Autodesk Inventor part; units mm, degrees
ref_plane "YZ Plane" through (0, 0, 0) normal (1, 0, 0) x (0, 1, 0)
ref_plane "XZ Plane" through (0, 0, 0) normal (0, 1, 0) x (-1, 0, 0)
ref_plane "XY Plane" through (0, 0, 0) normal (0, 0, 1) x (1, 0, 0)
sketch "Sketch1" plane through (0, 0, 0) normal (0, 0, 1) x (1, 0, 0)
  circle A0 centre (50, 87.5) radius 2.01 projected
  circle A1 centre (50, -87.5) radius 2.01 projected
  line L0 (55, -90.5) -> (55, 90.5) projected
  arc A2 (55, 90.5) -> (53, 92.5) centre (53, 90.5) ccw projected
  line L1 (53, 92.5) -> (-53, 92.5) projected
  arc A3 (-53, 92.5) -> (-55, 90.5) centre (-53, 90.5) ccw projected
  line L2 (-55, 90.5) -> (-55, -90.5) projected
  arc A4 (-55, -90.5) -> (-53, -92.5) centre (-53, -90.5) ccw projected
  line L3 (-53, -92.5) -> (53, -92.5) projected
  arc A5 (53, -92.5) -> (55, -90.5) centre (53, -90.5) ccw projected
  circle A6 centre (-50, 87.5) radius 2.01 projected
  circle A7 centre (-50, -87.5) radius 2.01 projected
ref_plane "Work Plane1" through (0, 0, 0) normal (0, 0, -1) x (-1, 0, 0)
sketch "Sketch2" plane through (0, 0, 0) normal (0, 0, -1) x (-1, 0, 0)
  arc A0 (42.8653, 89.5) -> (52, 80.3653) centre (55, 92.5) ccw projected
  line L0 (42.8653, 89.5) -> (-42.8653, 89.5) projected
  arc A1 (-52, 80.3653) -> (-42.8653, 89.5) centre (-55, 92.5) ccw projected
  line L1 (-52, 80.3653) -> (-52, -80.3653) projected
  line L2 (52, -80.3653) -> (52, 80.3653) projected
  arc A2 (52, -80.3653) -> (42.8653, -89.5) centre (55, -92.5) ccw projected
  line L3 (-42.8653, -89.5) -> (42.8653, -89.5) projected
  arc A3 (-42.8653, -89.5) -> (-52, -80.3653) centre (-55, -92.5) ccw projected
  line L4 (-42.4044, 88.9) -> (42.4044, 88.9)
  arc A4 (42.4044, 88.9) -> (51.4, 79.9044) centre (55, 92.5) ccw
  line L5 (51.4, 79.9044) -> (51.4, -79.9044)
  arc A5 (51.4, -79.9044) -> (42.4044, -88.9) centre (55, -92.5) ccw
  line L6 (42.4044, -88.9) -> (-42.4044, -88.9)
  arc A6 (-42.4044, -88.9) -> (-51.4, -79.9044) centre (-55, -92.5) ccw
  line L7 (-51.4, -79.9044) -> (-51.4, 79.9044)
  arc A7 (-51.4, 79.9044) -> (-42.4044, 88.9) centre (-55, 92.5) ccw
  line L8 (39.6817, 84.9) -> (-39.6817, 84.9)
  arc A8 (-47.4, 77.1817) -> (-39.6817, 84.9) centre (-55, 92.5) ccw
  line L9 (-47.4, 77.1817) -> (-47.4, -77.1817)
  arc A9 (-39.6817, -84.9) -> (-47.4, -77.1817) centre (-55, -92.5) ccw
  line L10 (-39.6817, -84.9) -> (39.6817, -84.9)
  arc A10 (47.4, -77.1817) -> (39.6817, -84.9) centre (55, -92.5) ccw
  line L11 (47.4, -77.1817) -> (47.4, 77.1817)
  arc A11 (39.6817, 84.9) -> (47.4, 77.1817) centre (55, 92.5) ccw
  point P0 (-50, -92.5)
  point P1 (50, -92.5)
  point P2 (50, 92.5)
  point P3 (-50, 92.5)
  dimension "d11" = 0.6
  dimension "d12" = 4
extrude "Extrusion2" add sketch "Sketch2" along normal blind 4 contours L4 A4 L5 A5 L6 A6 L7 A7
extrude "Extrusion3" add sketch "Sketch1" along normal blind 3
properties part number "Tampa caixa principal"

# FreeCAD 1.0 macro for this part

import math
import FreeCAD as App
import Part
import Sketcher

V = App.Vector
Q = App.Units.Quantity

doc = App.newDocument("Part")
body = doc.addObject("PartDesign::Body", "Body")

# Sketch on XY plane
sketch1 = doc.addObject("Sketcher::SketchObject", "Sketch")
body.addObject(sketch1)
sketch1.AttachmentSupport = (doc.XY_Plane, [""])
sketch1.MapMode = "FlatFace"
sketch1.addGeometry(Part.LineSegment(V(-42.4044, 88.9, 0), V(42.4044, 88.9, 0)), False)
sketch1.addGeometry(Part.ArcOfCircle(Part.Circle(V(55, 92.5, 0), V(0, 0, 1), 13.099967), math.radians(-164.049317), math.radians(-105.950683)), False)
sketch1.addGeometry(Part.LineSegment(V(51.4, 79.9044, 0), V(51.4, -79.9044, 0)), False)
sketch1.addGeometry(Part.ArcOfCircle(Part.Circle(V(55, -92.5, 0), V(0, 0, 1), 13.099967), math.radians(105.950683), math.radians(164.049317)), False)
sketch1.addGeometry(Part.LineSegment(V(42.4044, -88.9, 0), V(-42.4044, -88.9, 0)), False)
sketch1.addGeometry(Part.ArcOfCircle(Part.Circle(V(-55, -92.5, 0), V(0, 0, 1), 13.099967), math.radians(15.950683), math.radians(74.049317)), False)
sketch1.addGeometry(Part.LineSegment(V(-51.4, -79.9044, 0), V(-51.4, 79.9044, 0)), False)
sketch1.addGeometry(Part.ArcOfCircle(Part.Circle(V(-55, 92.5, 0), V(0, 0, 1), 13.099967), math.radians(-74.049317), math.radians(-15.950683)), False)
sketch1.addGeometry(Part.LineSegment(V(39.6817, 84.9, 0), V(-39.6817, 84.9, 0)), False)
sketch1.addGeometry(Part.ArcOfCircle(Part.Circle(V(-55, 92.5, 0), V(0, 0, 1), 17.100009), math.radians(-63.612215), math.radians(-26.387785)), False)
sketch1.addGeometry(Part.LineSegment(V(-47.4, 77.1817, 0), V(-47.4, -77.1817, 0)), False)
sketch1.addGeometry(Part.ArcOfCircle(Part.Circle(V(-55, -92.5, 0), V(0, 0, 1), 17.100009), math.radians(26.387785), math.radians(63.612215)), False)
sketch1.addGeometry(Part.LineSegment(V(-39.6817, -84.9, 0), V(39.6817, -84.9, 0)), False)
sketch1.addGeometry(Part.ArcOfCircle(Part.Circle(V(55, -92.5, 0), V(0, 0, 1), 17.100009), math.radians(116.387785), math.radians(153.612215)), False)
sketch1.addGeometry(Part.LineSegment(V(47.4, -77.1817, 0), V(47.4, 77.1817, 0)), False)
sketch1.addGeometry(Part.ArcOfCircle(Part.Circle(V(55, 92.5, 0), V(0, 0, 1), 17.100009), math.radians(-153.612215), math.radians(-116.387785)), False)
sketch1.addConstraint(Sketcher.Constraint("Coincident", 0, 2, 1, 1))
sketch1.addConstraint(Sketcher.Constraint("Coincident", 1, 2, 2, 1))
sketch1.addConstraint(Sketcher.Constraint("Coincident", 2, 2, 3, 1))
sketch1.addConstraint(Sketcher.Constraint("Coincident", 3, 2, 4, 1))
sketch1.addConstraint(Sketcher.Constraint("Coincident", 4, 2, 5, 1))
sketch1.addConstraint(Sketcher.Constraint("Coincident", 5, 2, 6, 1))
sketch1.addConstraint(Sketcher.Constraint("Coincident", 6, 2, 7, 1))
sketch1.addConstraint(Sketcher.Constraint("Coincident", 7, 2, 0, 1))
sketch1.addConstraint(Sketcher.Constraint("Coincident", 8, 2, 9, 2))
sketch1.addConstraint(Sketcher.Constraint("Coincident", 9, 1, 10, 1))
sketch1.addConstraint(Sketcher.Constraint("Coincident", 10, 2, 11, 2))
sketch1.addConstraint(Sketcher.Constraint("Coincident", 11, 1, 12, 1))
sketch1.addConstraint(Sketcher.Constraint("Coincident", 12, 2, 13, 2))
sketch1.addConstraint(Sketcher.Constraint("Coincident", 13, 1, 14, 1))
sketch1.addConstraint(Sketcher.Constraint("Coincident", 14, 2, 15, 2))
sketch1.addConstraint(Sketcher.Constraint("Coincident", 15, 1, 8, 1))
sketch1.addConstraint(Sketcher.Constraint("Horizontal", 0))
sketch1.addConstraint(Sketcher.Constraint("Vertical", 2))
sketch1.addConstraint(Sketcher.Constraint("Horizontal", 4))
sketch1.addConstraint(Sketcher.Constraint("Vertical", 6))
sketch1.addConstraint(Sketcher.Constraint("Horizontal", 8))
sketch1.addConstraint(Sketcher.Constraint("Vertical", 10))
sketch1.addConstraint(Sketcher.Constraint("Horizontal", 12))
sketch1.addConstraint(Sketcher.Constraint("Vertical", 14))
sketch1.addConstraint(Sketcher.Constraint("Coincident", 9, 3, 7, 3))
sketch1.addConstraint(Sketcher.Constraint("Coincident", 11, 3, 5, 3))
sketch1.addConstraint(Sketcher.Constraint("Coincident", 13, 3, 3, 3))
sketch1.addConstraint(Sketcher.Constraint("Coincident", 15, 3, 1, 3))
sketch1.addConstraint(Sketcher.Constraint("Equal", 1, 3))
sketch1.addConstraint(Sketcher.Constraint("Equal", 3, 5))
sketch1.addConstraint(Sketcher.Constraint("Equal", 5, 7))
sketch1.addConstraint(Sketcher.Constraint("Equal", 9, 11))
sketch1.addConstraint(Sketcher.Constraint("Equal", 11, 13))
sketch1.addConstraint(Sketcher.Constraint("Equal", 13, 15))
sketch1.addConstraint(Sketcher.Constraint("Symmetric", 1, 3, 5, 3, -1, 1))
sketch1.addConstraint(Sketcher.Constraint("Symmetric", 3, 3, 7, 3, -1, 1))
sketch1.addConstraint(Sketcher.Constraint("Symmetric", 3, 3, 5, 3, -2))
sketch1.addConstraint(Sketcher.Constraint("Horizontal", 2, 2, 5, 2))
sketch1.addConstraint(Sketcher.Constraint("Horizontal", 10, 2, 13, 1))
sketch1.addConstraint(Sketcher.Constraint("Vertical", 0, 2, 3, 2))
sketch1.addConstraint(Sketcher.Constraint("Vertical", 8, 2, 11, 1))
sketch1.addConstraint(Sketcher.Constraint("DistanceY", 8, 2, 7, 2, Q("4 mm")))
sketch1.addConstraint(Sketcher.Constraint("DistanceX", 6, 2, 9, 1, Q("4 mm")))
sketch1.addConstraint(Sketcher.Constraint("Radius", 1, Q("13.1 mm")))
sketch1.addConstraint(Sketcher.Constraint("Radius", 9, Q("17.1 mm")))
sketch1.addConstraint(Sketcher.Constraint("DistanceX", -1, 1, 1, 3, Q("55 mm")))
sketch1.addConstraint(Sketcher.Constraint("DistanceY", 3, 3, 1, 3, Q("185 mm")))
sketch1.addConstraint(Sketcher.Constraint("DistanceY", -1, 1, 0, 2, Q("88.9 mm")))
sketch1.addConstraint(Sketcher.Constraint("DistanceX", -1, 1, 1, 2, Q("51.4 mm")))
pad1 = doc.addObject("PartDesign::Pad", "Pad")
body.addObject(pad1)
pad1.Profile = sketch1
pad1.Length = 4
pad1.Reversed = True

# Sketch on XY plane
sketch2 = doc.addObject("Sketcher::SketchObject", "Sketch001")
body.addObject(sketch2)
sketch2.AttachmentSupport = (doc.XY_Plane, [""])
sketch2.MapMode = "FlatFace"
sketch2.addGeometry(Part.ArcOfCircle(Part.Circle(V(53, -90.5, 0), V(0, 0, 1), 2), math.radians(-90), math.radians(0)), False)
sketch2.addGeometry(Part.LineSegment(V(55, -90.5, 0), V(55, 90.5, 0)), False)
sketch2.addGeometry(Part.ArcOfCircle(Part.Circle(V(53, 90.5, 0), V(0, 0, 1), 2), math.radians(0), math.radians(90)), False)
sketch2.addGeometry(Part.LineSegment(V(53, 92.5, 0), V(-53, 92.5, 0)), False)
sketch2.addGeometry(Part.ArcOfCircle(Part.Circle(V(-53, 90.5, 0), V(0, 0, 1), 2), math.radians(90), math.radians(180)), False)
sketch2.addGeometry(Part.LineSegment(V(-55, 90.5, 0), V(-55, -90.5, 0)), False)
sketch2.addGeometry(Part.ArcOfCircle(Part.Circle(V(-53, -90.5, 0), V(0, 0, 1), 2), math.radians(180), math.radians(270)), False)
sketch2.addGeometry(Part.LineSegment(V(-53, -92.5, 0), V(53, -92.5, 0)), False)
sketch2.addGeometry(Part.Circle(V(-50, -87.5, 0), V(0, 0, 1), 2.01), False)
sketch2.addGeometry(Part.Circle(V(50, -87.5, 0), V(0, 0, 1), 2.01), False)
sketch2.addGeometry(Part.Circle(V(-50, 87.5, 0), V(0, 0, 1), 2.01), False)
sketch2.addGeometry(Part.Circle(V(50, 87.5, 0), V(0, 0, 1), 2.01), False)
sketch2.addConstraint(Sketcher.Constraint("Tangent", 0, 2, 1, 1))
sketch2.addConstraint(Sketcher.Constraint("Tangent", 1, 2, 2, 1))
sketch2.addConstraint(Sketcher.Constraint("Tangent", 2, 2, 3, 1))
sketch2.addConstraint(Sketcher.Constraint("Tangent", 3, 2, 4, 1))
sketch2.addConstraint(Sketcher.Constraint("Tangent", 4, 2, 5, 1))
sketch2.addConstraint(Sketcher.Constraint("Tangent", 5, 2, 6, 1))
sketch2.addConstraint(Sketcher.Constraint("Tangent", 6, 2, 7, 1))
sketch2.addConstraint(Sketcher.Constraint("Tangent", 7, 2, 0, 1))
sketch2.addConstraint(Sketcher.Constraint("Vertical", 1))
sketch2.addConstraint(Sketcher.Constraint("Horizontal", 3))
sketch2.addConstraint(Sketcher.Constraint("Vertical", 5))
sketch2.addConstraint(Sketcher.Constraint("Horizontal", 7))
sketch2.addConstraint(Sketcher.Constraint("Equal", 0, 2))
sketch2.addConstraint(Sketcher.Constraint("Equal", 2, 4))
sketch2.addConstraint(Sketcher.Constraint("Equal", 4, 6))
sketch2.addConstraint(Sketcher.Constraint("Equal", 8, 9))
sketch2.addConstraint(Sketcher.Constraint("Equal", 9, 10))
sketch2.addConstraint(Sketcher.Constraint("Equal", 10, 11))
sketch2.addConstraint(Sketcher.Constraint("Symmetric", 0, 3, 4, 3, -1, 1))
sketch2.addConstraint(Sketcher.Constraint("Symmetric", 9, 3, 10, 3, -1, 1))
sketch2.addConstraint(Sketcher.Constraint("Symmetric", 8, 3, 11, 3, -1, 1))
sketch2.addConstraint(Sketcher.Constraint("Symmetric", 8, 3, 9, 3, -2))
sketch2.addConstraint(Sketcher.Constraint("Radius", 0, Q("2 mm")))
sketch2.addConstraint(Sketcher.Constraint("Diameter", 8, Q("4.02 mm")))
sketch2.addConstraint(Sketcher.Constraint("DistanceX", 3, 2, 3, 1, Q("106 mm")))
sketch2.addConstraint(Sketcher.Constraint("DistanceY", 1, 1, 1, 2, Q("181 mm")))
sketch2.addConstraint(Sketcher.Constraint("DistanceX", 8, 3, -1, 1, Q("50 mm")))
sketch2.addConstraint(Sketcher.Constraint("DistanceY", 6, 3, 8, 3, Q("3 mm")))
pad2 = doc.addObject("PartDesign::Pad", "Pad001")
body.addObject(pad2)
pad2.Profile = sketch2
pad2.Length = 3

doc.recompute()
